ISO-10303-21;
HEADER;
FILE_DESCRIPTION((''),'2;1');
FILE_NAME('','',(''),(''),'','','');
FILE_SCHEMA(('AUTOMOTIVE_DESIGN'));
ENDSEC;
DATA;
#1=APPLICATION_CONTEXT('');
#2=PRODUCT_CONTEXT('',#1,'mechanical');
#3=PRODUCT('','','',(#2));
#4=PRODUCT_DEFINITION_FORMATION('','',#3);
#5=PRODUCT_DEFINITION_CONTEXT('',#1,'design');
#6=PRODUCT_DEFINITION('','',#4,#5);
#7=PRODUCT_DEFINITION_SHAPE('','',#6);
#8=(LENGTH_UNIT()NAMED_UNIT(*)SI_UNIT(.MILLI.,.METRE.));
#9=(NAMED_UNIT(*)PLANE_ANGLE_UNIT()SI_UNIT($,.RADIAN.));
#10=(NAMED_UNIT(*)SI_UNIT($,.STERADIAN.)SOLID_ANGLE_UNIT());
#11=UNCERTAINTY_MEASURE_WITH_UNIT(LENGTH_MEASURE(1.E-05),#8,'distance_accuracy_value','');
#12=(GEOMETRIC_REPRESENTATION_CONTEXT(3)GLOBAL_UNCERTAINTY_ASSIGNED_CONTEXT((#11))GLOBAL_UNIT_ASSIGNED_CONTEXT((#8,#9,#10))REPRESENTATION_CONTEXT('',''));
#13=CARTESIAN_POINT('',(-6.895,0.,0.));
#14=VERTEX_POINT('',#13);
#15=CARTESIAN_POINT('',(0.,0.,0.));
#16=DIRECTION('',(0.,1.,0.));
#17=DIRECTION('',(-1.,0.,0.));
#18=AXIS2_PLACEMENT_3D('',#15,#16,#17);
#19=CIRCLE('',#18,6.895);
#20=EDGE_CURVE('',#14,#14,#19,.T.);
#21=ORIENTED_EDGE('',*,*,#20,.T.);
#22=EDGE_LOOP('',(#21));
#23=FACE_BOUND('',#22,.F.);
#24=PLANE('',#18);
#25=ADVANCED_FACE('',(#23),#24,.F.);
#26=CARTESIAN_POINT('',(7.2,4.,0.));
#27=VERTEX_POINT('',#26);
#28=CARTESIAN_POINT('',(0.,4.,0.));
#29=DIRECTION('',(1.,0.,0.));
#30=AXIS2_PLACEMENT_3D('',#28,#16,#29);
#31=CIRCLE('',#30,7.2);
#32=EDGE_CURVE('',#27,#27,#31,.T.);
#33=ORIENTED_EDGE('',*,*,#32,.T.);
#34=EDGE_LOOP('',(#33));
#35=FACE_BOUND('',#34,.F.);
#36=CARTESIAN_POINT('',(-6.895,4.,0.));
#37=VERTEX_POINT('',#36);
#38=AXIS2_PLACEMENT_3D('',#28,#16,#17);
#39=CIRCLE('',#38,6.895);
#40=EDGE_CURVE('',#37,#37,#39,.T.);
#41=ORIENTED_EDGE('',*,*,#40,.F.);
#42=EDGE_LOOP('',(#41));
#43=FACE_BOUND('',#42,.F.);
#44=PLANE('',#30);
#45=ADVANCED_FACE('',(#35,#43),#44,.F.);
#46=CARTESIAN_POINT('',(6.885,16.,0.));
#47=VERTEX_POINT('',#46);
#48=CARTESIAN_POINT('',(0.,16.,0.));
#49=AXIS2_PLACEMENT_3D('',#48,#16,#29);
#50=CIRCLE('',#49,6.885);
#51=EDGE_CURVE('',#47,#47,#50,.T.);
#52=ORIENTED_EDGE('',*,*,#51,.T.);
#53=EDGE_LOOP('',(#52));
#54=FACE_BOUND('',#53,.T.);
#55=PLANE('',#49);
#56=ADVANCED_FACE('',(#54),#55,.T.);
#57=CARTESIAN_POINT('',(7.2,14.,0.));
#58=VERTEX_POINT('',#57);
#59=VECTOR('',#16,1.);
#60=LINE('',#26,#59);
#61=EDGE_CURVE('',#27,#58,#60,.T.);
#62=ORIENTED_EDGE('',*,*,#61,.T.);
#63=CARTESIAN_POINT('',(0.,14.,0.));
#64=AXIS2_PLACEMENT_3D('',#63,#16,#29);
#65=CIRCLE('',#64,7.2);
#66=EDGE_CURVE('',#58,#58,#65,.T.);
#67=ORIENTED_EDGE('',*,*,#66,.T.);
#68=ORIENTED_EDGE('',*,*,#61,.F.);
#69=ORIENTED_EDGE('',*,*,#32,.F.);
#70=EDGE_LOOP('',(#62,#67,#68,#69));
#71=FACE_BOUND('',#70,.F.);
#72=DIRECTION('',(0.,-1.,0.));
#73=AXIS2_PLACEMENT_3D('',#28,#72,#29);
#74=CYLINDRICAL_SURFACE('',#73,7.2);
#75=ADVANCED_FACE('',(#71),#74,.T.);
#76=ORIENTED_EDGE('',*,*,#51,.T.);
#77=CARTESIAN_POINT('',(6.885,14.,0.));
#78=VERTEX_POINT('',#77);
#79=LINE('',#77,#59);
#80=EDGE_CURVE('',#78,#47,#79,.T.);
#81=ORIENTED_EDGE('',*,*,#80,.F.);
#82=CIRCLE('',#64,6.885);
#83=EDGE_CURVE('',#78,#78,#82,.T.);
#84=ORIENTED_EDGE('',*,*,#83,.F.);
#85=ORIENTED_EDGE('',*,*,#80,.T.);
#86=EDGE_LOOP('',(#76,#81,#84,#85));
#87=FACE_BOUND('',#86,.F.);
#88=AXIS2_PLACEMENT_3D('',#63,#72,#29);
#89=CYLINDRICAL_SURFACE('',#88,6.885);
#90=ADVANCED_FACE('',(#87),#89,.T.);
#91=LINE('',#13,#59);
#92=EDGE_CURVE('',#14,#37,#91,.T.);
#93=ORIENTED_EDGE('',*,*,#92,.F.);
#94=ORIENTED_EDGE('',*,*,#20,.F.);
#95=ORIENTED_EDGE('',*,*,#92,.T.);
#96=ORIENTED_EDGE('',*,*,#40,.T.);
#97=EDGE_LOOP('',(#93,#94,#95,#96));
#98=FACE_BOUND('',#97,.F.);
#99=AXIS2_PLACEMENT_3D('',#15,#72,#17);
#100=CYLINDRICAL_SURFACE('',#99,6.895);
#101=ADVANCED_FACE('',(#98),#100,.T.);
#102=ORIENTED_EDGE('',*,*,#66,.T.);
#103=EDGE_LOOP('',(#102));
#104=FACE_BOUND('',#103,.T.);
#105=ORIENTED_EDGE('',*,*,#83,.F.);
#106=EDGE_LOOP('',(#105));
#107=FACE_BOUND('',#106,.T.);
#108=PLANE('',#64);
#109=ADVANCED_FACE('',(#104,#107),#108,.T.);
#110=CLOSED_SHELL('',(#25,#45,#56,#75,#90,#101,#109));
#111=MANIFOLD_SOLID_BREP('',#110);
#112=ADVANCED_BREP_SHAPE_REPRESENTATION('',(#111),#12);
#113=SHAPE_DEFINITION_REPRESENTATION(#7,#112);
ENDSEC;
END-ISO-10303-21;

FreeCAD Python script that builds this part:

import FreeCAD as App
import Part
import Sketcher
from FreeCAD import Vector

doc = App.newDocument("Part")
params = doc.addObject("Spreadsheet::Sheet", "Params")
for row, (alias, value) in enumerate([
    ("sketch1_diameter", "13.79 mm"),
    ("pad1_length", "4 mm"),
    ("sketch2_diameter", "14.4 mm"),
    ("pad2_length", "10 mm"),
    ("sketch3_diameter", "13.77 mm"),
    ("pad3_length", "2 mm"),
], start=1):
    params.set(f"A{row}", alias)
    params.set(f"B{row}", "=" + value)
    params.setAlias(f"B{row}", alias)

body = doc.addObject("PartDesign::Body", "Body")

sketch1 = body.newObject("Sketcher::SketchObject", "Sketch")
sketch1.AttachmentSupport = (doc.getObject("XZ_Plane"), [""])
sketch1.MapMode = "FlatFace"
sketch1.addGeometry(Part.Circle(Vector(0, 0, 0), Vector(0, 0, 1), 6.895), False)
sketch1.addConstraint([
    Sketcher.Constraint("Coincident", 0, 3, -1, 1),
    Sketcher.Constraint("Diameter", 0, 13.79),
])
sketch1.setExpression("Constraints[1]", "Params.sketch1_diameter")
pad1 = body.newObject("PartDesign::Pad", "Pad")
pad1.Profile = sketch1
pad1.setExpression("Length", "Params.pad1_length")
pad1.Reversed = True

sketch2 = body.newObject("Sketcher::SketchObject", "Sketch001")
sketch2.AttachmentSupport = (doc.getObject("XZ_Plane"), [""])
sketch2.MapMode = "FlatFace"
sketch2.AttachmentOffset = App.Placement(Vector(0, 0, -4), App.Rotation())
sketch2.addGeometry(Part.Circle(Vector(0, 0, 0), Vector(0, 0, 1), 7.2), False)
sketch2.addConstraint([
    Sketcher.Constraint("Coincident", 0, 3, -1, 1),
    Sketcher.Constraint("Diameter", 0, 14.4),
])
sketch2.setExpression("Constraints[1]", "Params.sketch2_diameter")
pad2 = body.newObject("PartDesign::Pad", "Pad001")
pad2.Profile = sketch2
pad2.setExpression("Length", "Params.pad2_length")
pad2.Reversed = True

sketch3 = body.newObject("Sketcher::SketchObject", "Sketch002")
sketch3.AttachmentSupport = (doc.getObject("XZ_Plane"), [""])
sketch3.MapMode = "FlatFace"
sketch3.AttachmentOffset = App.Placement(Vector(0, 0, -14), App.Rotation())
sketch3.addGeometry(Part.Circle(Vector(0, 0, 0), Vector(0, 0, 1), 6.885), False)
sketch3.addConstraint([
    Sketcher.Constraint("Coincident", 0, 3, -1, 1),
    Sketcher.Constraint("Diameter", 0, 13.77),
])
sketch3.setExpression("Constraints[1]", "Params.sketch3_diameter")
pad3 = body.newObject("PartDesign::Pad", "Pad002")
pad3.Profile = sketch3
pad3.setExpression("Length", "Params.pad3_length")
pad3.Reversed = True

doc.recompute()
